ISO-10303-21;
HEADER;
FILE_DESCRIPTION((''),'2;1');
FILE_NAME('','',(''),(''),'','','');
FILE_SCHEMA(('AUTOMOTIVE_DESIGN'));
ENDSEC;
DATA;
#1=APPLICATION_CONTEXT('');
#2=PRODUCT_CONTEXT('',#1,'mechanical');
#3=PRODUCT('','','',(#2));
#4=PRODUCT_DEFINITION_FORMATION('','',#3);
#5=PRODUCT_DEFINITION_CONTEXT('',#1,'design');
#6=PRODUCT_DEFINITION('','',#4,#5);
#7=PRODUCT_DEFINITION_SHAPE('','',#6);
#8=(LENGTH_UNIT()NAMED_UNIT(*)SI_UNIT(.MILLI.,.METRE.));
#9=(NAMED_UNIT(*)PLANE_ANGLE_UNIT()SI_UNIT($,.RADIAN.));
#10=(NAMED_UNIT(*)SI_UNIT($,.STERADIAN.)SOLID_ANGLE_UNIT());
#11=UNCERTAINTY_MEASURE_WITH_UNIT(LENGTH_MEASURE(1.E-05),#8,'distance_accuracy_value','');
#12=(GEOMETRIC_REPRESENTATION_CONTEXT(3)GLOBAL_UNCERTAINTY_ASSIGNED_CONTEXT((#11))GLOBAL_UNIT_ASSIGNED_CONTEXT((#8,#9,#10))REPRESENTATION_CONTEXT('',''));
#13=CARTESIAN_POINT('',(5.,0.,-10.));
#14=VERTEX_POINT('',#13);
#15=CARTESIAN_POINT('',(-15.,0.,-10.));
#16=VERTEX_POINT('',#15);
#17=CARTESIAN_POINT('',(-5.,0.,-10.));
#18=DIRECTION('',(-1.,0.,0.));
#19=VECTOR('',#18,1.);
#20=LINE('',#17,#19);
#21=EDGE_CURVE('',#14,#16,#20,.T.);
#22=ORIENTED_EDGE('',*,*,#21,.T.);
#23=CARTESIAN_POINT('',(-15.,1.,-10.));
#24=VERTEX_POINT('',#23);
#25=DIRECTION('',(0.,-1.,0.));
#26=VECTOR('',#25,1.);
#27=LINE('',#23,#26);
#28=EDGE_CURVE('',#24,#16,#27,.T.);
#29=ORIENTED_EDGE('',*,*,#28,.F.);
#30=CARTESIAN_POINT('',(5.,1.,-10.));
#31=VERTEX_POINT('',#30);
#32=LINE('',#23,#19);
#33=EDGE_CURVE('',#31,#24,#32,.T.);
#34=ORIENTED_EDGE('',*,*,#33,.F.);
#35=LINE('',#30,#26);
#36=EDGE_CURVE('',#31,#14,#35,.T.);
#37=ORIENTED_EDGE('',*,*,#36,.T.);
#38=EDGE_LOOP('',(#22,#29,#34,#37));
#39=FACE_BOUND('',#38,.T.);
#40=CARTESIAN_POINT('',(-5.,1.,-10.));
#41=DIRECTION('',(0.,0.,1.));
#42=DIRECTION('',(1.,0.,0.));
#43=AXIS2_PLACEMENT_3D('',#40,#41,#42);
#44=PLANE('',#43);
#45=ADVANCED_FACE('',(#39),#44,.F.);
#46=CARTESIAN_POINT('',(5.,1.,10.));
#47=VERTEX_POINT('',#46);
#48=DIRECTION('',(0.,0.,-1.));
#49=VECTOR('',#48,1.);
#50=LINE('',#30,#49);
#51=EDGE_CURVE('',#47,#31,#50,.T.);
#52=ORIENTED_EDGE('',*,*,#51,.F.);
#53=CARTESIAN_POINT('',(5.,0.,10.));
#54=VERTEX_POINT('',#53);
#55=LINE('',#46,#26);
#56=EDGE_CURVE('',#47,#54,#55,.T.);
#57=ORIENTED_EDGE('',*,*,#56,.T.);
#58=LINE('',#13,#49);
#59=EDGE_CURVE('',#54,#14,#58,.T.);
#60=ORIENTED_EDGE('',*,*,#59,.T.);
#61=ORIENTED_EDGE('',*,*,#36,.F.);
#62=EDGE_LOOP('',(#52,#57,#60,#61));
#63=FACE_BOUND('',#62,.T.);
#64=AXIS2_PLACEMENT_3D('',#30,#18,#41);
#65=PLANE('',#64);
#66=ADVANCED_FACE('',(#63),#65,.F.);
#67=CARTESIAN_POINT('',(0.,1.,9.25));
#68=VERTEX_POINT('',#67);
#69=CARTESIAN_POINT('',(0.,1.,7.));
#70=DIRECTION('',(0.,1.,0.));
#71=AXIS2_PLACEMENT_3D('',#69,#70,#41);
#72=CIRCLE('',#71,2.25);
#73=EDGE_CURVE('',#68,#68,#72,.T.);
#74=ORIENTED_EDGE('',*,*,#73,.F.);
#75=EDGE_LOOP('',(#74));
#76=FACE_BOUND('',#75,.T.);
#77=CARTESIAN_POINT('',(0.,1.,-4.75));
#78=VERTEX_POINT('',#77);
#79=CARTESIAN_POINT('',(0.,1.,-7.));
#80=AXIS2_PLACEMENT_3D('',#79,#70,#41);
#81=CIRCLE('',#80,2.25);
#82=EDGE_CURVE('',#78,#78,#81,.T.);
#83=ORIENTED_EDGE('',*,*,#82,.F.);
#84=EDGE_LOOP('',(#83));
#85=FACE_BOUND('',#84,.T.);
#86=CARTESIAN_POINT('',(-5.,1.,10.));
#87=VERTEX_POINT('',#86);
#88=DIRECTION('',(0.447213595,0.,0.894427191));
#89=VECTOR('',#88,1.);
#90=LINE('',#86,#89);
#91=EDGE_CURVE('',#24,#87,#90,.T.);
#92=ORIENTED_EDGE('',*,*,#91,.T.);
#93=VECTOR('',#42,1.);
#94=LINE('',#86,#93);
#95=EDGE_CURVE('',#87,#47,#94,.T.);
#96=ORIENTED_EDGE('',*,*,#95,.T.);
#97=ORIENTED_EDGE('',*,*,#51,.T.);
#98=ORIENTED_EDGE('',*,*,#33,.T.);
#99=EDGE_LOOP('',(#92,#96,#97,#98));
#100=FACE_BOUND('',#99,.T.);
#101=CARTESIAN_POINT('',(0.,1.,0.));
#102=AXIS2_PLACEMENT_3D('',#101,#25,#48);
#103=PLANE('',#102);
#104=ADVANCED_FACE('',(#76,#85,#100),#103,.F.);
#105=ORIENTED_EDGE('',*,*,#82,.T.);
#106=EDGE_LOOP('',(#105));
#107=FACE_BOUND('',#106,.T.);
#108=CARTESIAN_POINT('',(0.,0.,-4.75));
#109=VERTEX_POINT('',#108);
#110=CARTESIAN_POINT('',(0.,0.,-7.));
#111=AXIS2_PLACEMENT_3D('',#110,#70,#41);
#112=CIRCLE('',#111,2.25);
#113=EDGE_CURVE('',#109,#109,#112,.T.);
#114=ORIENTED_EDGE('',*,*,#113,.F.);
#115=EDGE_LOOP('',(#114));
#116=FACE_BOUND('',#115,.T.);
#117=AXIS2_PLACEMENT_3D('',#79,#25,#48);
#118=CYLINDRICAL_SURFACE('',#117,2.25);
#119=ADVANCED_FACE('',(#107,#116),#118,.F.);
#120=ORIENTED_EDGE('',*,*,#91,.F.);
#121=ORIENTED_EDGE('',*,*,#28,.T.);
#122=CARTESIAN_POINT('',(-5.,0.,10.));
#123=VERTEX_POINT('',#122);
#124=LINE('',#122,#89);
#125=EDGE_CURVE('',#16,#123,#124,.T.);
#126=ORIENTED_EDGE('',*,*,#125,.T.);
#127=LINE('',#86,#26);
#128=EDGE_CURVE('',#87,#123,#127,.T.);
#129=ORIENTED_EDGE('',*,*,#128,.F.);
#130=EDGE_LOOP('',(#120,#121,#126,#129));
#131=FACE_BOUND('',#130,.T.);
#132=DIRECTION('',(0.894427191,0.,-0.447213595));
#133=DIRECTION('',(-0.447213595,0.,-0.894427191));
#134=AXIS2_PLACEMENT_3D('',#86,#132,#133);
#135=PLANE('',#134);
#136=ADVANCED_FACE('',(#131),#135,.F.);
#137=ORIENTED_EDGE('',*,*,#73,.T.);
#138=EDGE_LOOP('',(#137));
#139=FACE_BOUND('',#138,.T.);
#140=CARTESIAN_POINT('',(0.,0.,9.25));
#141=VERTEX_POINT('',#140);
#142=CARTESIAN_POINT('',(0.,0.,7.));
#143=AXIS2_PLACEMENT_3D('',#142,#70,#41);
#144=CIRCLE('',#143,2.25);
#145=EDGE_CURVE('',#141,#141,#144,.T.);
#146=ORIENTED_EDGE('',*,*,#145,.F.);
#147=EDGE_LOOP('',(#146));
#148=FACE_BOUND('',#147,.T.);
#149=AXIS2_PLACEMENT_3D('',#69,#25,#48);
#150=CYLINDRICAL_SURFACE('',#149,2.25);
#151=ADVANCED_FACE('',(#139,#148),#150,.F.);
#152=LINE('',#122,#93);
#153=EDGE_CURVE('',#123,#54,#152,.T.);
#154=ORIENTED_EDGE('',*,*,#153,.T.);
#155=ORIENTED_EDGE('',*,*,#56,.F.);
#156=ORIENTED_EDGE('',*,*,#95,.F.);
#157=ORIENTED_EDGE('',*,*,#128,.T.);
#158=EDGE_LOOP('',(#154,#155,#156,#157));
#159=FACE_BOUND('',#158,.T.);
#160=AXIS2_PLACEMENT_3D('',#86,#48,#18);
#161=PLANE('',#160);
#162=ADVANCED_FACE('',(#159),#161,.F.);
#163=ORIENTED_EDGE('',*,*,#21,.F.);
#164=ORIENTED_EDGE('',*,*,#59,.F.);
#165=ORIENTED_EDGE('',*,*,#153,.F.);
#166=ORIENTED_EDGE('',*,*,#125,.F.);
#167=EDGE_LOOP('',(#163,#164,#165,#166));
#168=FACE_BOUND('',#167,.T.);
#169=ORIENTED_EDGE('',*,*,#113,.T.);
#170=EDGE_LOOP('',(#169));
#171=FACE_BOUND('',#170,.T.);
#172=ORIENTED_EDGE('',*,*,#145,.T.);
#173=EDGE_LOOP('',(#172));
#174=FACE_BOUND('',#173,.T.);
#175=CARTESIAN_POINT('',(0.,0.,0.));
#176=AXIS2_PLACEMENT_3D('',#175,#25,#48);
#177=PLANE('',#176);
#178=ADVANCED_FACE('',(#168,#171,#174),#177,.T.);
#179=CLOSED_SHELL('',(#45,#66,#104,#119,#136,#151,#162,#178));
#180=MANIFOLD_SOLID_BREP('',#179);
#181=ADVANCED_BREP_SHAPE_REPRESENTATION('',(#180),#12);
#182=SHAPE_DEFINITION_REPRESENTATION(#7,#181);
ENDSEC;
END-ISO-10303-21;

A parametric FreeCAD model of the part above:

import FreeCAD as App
import Part
import Sketcher

doc = App.newDocument("Part")
body = doc.addObject("PartDesign::Body", "Body")

# Sketch on XZ plane
sketch1 = body.newObject("Sketcher::SketchObject", "Sketch")
sketch1.AttachmentSupport = (doc.getObject("XZ_Plane"), [""])
sketch1.MapMode = "FlatFace"
sketch1.addGeometry([
    Part.LineSegment(App.Vector(-15, -10, 0), App.Vector(-5, 10, 0)),  # 0
    Part.LineSegment(App.Vector(-5, 10, 0), App.Vector(5, 10, 0)),  # 1
    Part.LineSegment(App.Vector(5, 10, 0), App.Vector(5, -10, 0)),  # 2
    Part.LineSegment(App.Vector(5, -10, 0), App.Vector(-15, -10, 0)),  # 3
    Part.Circle(App.Vector(0, 7, 0), App.Vector(0, 0, 1), 2.25),  # 4
    Part.Circle(App.Vector(0, -7, 0), App.Vector(0, 0, 1), 2.25),  # 5
], False)
sketch1.addConstraint([
    Sketcher.Constraint("Coincident", 0, 2, 1, 1),
    Sketcher.Constraint("Coincident", 1, 2, 2, 1),
    Sketcher.Constraint("Coincident", 2, 2, 3, 1),
    Sketcher.Constraint("Coincident", 3, 2, 0, 1),
    Sketcher.Constraint("Horizontal", 1),
    Sketcher.Constraint("Vertical", 2),
    Sketcher.Constraint("Horizontal", 3),
    Sketcher.Constraint("Equal", 4, 5),
    Sketcher.Constraint("Symmetric", 4, 3, 5, 3, -1, 1),
    Sketcher.Constraint("Symmetric", 0, 2, 2, 2, -1, 1),
    Sketcher.Constraint("PointOnObject", 4, 3, -2),
    Sketcher.Constraint("Equal", 3, 2),
    Sketcher.Constraint("Diameter", 4, 4.5),
    Sketcher.Constraint("DistanceX", 1, 1, 1, 2, 10.0),
    Sketcher.Constraint("DistanceX", 3, 2, 3, 1, 20.0),
    Sketcher.Constraint("DistanceY", -1, 1, 4, 3, 7.0),
])
pad1 = body.newObject("PartDesign::Pad", "Pad")
pad1.Profile = sketch1
pad1.Length = 1
pad1.Reversed = True

doc.recompute()
